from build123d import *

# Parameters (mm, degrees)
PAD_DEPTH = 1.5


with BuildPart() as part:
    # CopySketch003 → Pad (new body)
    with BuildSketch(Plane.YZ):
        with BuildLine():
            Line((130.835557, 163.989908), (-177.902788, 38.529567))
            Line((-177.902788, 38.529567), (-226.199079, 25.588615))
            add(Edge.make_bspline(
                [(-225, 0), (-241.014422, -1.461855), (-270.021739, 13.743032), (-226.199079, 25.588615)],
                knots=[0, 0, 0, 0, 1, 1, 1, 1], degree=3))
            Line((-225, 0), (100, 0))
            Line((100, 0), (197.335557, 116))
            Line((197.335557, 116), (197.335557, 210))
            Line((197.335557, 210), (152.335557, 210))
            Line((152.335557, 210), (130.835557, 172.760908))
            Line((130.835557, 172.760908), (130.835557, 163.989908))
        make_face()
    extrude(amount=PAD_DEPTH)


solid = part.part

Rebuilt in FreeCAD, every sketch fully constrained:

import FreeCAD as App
import Part
import Sketcher

V = App.Vector
Q = App.Units.Quantity

doc = App.newDocument("Part")
body = doc.addObject("PartDesign::Body", "Body")

sketch1 = body.newObject("Sketcher::SketchObject", "Sketch")
sketch1.AttachmentSupport = (doc.getObject("YZ_Plane"), [""])
sketch1.MapMode = "FlatFace"
sketch1.addGeometry(Part.LineSegment(V(130.835557, 163.989908, 0), V(-177.902788, 38.529567, 0)), False)
sketch1.addGeometry(Part.LineSegment(V(-177.902788, 38.529567, 0), V(-226.199079, 25.588615, 0)), False)
sketch1.addGeometry(Part.BSplineCurve([V(-225, 0, 0), V(-241.014422, -1.461855, 0), V(-270.021739, 13.743032, 0), V(-226.199079, 25.588615, 0)], [4, 4], [0, 1], False, 3, [1, 1, 1, 1], False), False)
sketch1.addGeometry(Part.LineSegment(V(-225, 0, 0), V(100, 0, 0)), False)
sketch1.addGeometry(Part.LineSegment(V(100, 0, 0), V(197.335557, 116, 0)), False)
sketch1.addGeometry(Part.LineSegment(V(197.335557, 116, 0), V(197.335557, 210, 0)), False)
sketch1.addGeometry(Part.LineSegment(V(197.335557, 210, 0), V(152.335557, 210, 0)), False)
sketch1.addGeometry(Part.LineSegment(V(152.335557, 210, 0), V(130.835557, 172.760908, 0)), False)
sketch1.addGeometry(Part.LineSegment(V(130.835557, 172.760908, 0), V(130.835557, 163.989908, 0)), False)
sketch1.addConstraint(Sketcher.Constraint("Block", 2))
sketch1.addConstraint(Sketcher.Constraint("Coincident", 0, 2, 1, 1))
sketch1.addConstraint(Sketcher.Constraint("Coincident", 1, 2, 2, 2))
sketch1.addConstraint(Sketcher.Constraint("Coincident", 2, 1, 3, 1))
sketch1.addConstraint(Sketcher.Constraint("Coincident", 3, 2, 4, 1))
sketch1.addConstraint(Sketcher.Constraint("Coincident", 4, 2, 5, 1))
sketch1.addConstraint(Sketcher.Constraint("Coincident", 5, 2, 6, 1))
sketch1.addConstraint(Sketcher.Constraint("Coincident", 6, 2, 7, 1))
sketch1.addConstraint(Sketcher.Constraint("Coincident", 7, 2, 8, 1))
sketch1.addConstraint(Sketcher.Constraint("Coincident", 8, 2, 0, 1))
sketch1.addConstraint(Sketcher.Constraint("Horizontal", 3))
sketch1.addConstraint(Sketcher.Constraint("Vertical", 5))
sketch1.addConstraint(Sketcher.Constraint("Horizontal", 6))
sketch1.addConstraint(Sketcher.Constraint("Vertical", 8))
sketch1.addConstraint(Sketcher.Constraint("DistanceX", 3, 1, 3, 2, Q("325 mm")))
sketch1.addConstraint(Sketcher.Constraint("DistanceX", 6, 2, 6, 1, Q("45 mm")))
sketch1.addConstraint(Sketcher.Constraint("DistanceY", 5, 1, 5, 2, Q("94 mm")))
sketch1.addConstraint(Sketcher.Constraint("Distance", 1, Q("50 mm")))
sketch1.addConstraint(Sketcher.Constraint("Distance", 7, Q("43 mm")))
sketch1.addConstraint(Sketcher.Constraint("DistanceY", -1, 1, 4, 2, Q("116 mm")))
sketch1.addConstraint(Sketcher.Constraint("DistanceX", 7, 2, 6, 2, Q("21.5 mm")))
sketch1.addConstraint(Sketcher.Constraint("DistanceY", 8, 2, 8, 1, Q("8.771 mm")))
sketch1.addConstraint(Sketcher.Constraint("Distance", 0, Q("333.256152 mm")))
sketch1.addConstraint(Sketcher.Constraint("DistanceX", 1, 2, 0, 2, Q("48.296291 mm")))
pad1 = body.newObject("PartDesign::Pad", "Pad")
pad1.Profile = sketch1
pad1.Length = 1.5

doc.recompute()
